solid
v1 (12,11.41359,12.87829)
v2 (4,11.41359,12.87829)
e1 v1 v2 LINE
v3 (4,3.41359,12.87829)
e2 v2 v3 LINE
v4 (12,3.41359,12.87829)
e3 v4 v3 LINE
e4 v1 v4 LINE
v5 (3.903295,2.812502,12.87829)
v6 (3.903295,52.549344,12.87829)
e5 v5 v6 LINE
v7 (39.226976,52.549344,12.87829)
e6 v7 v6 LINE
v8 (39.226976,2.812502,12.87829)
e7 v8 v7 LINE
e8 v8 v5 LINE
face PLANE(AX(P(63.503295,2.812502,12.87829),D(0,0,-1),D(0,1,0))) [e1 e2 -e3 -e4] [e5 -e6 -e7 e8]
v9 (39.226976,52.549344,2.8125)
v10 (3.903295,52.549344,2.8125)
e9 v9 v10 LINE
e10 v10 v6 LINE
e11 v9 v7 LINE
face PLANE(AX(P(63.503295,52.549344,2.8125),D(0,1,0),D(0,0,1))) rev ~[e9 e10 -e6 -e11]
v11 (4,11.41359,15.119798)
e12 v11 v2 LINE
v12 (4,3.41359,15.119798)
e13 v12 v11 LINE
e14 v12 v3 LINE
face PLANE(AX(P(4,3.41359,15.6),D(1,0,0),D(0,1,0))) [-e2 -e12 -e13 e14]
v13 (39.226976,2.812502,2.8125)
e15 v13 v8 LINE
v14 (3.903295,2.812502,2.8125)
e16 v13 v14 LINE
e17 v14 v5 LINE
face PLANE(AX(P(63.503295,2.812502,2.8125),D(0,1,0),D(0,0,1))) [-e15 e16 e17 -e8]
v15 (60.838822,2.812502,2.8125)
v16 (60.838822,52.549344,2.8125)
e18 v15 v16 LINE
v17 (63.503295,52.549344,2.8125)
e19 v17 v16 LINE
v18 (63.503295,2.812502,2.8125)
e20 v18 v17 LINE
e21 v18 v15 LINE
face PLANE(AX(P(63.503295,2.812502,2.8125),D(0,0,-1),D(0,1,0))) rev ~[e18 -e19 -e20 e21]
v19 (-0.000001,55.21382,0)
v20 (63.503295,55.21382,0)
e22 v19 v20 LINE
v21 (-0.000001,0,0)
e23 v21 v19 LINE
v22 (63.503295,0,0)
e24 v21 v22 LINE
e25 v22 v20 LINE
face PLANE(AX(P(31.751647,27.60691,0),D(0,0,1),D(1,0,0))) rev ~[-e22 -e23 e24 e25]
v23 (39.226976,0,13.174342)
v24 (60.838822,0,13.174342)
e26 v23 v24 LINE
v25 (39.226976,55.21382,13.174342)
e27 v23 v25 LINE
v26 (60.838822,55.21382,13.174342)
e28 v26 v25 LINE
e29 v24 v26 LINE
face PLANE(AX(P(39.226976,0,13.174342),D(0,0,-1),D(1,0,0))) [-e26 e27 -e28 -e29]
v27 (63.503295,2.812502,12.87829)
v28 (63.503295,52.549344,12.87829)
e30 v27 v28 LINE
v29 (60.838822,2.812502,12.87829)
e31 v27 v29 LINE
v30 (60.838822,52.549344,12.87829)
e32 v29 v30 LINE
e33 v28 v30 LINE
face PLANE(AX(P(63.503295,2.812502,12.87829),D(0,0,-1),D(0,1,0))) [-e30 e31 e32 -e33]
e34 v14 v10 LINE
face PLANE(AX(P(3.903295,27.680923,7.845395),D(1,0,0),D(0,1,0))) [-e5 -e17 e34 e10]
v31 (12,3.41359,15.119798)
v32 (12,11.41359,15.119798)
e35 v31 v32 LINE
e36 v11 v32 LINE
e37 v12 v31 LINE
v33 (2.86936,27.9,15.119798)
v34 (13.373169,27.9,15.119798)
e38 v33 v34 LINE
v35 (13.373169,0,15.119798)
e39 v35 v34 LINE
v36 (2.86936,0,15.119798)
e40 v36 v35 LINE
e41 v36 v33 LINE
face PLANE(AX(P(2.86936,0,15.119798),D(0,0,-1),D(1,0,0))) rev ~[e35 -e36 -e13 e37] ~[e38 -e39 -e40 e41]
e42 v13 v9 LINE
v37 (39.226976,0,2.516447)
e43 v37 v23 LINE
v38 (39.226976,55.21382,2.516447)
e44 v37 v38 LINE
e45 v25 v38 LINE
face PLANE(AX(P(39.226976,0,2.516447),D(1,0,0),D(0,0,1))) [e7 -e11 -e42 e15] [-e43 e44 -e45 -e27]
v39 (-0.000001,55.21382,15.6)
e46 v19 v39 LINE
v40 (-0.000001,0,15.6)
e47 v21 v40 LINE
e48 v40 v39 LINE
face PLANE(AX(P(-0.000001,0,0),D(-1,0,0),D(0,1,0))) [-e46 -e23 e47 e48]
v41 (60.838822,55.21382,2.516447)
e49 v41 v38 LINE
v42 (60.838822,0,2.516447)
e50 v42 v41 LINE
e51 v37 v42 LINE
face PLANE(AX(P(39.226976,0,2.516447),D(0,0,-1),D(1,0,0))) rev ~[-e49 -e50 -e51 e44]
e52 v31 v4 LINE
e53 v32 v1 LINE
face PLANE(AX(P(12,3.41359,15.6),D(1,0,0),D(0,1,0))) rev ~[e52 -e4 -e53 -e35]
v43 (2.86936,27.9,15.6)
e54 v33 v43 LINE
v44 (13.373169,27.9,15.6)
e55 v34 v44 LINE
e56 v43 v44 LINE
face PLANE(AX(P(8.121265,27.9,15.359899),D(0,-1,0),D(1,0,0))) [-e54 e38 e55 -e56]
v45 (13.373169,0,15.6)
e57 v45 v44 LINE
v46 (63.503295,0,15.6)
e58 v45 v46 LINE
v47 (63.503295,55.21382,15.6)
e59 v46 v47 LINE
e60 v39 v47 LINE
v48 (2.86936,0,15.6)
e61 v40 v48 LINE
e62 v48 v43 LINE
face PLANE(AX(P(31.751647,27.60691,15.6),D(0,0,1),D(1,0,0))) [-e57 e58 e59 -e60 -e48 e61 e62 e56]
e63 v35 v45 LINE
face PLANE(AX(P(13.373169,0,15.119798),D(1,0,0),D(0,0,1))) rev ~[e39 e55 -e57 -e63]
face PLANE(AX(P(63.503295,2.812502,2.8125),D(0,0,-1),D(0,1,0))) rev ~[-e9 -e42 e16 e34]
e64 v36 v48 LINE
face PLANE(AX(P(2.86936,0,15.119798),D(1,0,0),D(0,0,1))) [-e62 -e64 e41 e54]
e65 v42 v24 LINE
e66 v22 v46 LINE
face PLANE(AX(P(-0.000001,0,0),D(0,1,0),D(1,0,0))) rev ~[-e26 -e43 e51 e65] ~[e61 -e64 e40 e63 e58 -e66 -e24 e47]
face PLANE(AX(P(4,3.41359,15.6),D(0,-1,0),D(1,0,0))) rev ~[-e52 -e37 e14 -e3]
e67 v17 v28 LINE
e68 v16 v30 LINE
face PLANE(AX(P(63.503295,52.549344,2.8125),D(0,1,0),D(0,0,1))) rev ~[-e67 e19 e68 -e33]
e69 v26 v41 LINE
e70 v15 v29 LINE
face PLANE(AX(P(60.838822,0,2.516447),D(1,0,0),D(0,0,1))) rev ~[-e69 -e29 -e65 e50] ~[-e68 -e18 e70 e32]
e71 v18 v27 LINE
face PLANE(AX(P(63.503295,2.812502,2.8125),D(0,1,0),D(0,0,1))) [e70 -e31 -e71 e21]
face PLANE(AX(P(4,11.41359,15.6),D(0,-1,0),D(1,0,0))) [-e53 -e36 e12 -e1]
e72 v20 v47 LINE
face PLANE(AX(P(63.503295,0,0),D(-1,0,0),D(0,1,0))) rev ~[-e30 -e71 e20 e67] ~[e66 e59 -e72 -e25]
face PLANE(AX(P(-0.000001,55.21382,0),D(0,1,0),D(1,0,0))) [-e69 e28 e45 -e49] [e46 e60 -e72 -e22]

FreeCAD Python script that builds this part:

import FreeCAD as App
import Part
import Sketcher

V = App.Vector

doc = App.newDocument("Part")
body = doc.addObject("PartDesign::Body", "Body")

# Sketch on XY plane
sketch1 = body.newObject("Sketcher::SketchObject", "Sketch")
sketch1.AttachmentSupport = (doc.getObject("XY_Plane"), [""])
sketch1.MapMode = "FlatFace"
sketch1.addGeometry([
    Part.LineSegment(V(0, 55, 0), V(0, 0, 0)),
    Part.LineSegment(V(0, 0, 0), V(64, 0, 0)),
    Part.LineSegment(V(64, 0, 0), V(64, 55, 0)),
    Part.LineSegment(V(64, 55, 0), V(0, 55, 0)),
], False)
sketch1.addConstraint([
    Sketcher.Constraint("Coincident", 0, 2, 1, 1),
    Sketcher.Constraint("Coincident", 1, 2, 2, 1),
    Sketcher.Constraint("Coincident", 2, 2, 3, 1),
    Sketcher.Constraint("Coincident", 3, 2, 0, 1),
    Sketcher.Constraint("Vertical", 0),
    Sketcher.Constraint("Horizontal", 1),
    Sketcher.Constraint("Vertical", 2),
    Sketcher.Constraint("Horizontal", 3),
    Sketcher.Constraint("Coincident", 0, 2, -1, 1),
    Sketcher.Constraint("DistanceY", 0, 2, 0, 1, 55.21382),
    Sketcher.Constraint("DistanceX", 1, 1, 1, 2, 63.503295),
])
pad1 = body.newObject("PartDesign::Pad", "Pad")
pad1.Profile = sketch1
pad1.Length = 15.6

# Sketch on XZ plane
sketch2 = body.newObject("Sketcher::SketchObject", "Sketch001")
sketch2.AttachmentSupport = (doc.getObject("XZ_Plane"), [""])
sketch2.MapMode = "FlatFace"
sketch2.addGeometry([
    Part.LineSegment(V(39, 13, 0), V(39, 3, 0)),
    Part.LineSegment(V(39, 3, 0), V(61, 3, 0)),
    Part.LineSegment(V(61, 3, 0), V(61, 13, 0)),
    Part.LineSegment(V(61, 13, 0), V(39, 13, 0)),
], False)
sketch2.addConstraint([
    Sketcher.Constraint("Coincident", 0, 2, 1, 1),
    Sketcher.Constraint("Coincident", 1, 2, 2, 1),
    Sketcher.Constraint("Coincident", 2, 2, 3, 1),
    Sketcher.Constraint("Coincident", 3, 2, 0, 1),
    Sketcher.Constraint("Vertical", 0),
    Sketcher.Constraint("Horizontal", 1),
    Sketcher.Constraint("Vertical", 2),
    Sketcher.Constraint("Horizontal", 3),
    Sketcher.Constraint("DistanceX", 1, 1, 1, 2, 21.611847),
    Sketcher.Constraint("DistanceY", 0, 2, 0, 1, 10.657895),
    Sketcher.Constraint("DistanceX", -1, 1, 0, 2, 39.226976),
    Sketcher.Constraint("DistanceY", -1, 1, 0, 2, 2.516447),
])
pocket1 = body.newObject("PartDesign::Pocket", "Pocket")
pocket1.Profile = sketch2
pocket1.Length = 60.6

# Sketch on YZ plane
sketch3 = body.newObject("Sketcher::SketchObject", "Sketch002")
sketch3.AttachmentSupport = (doc.getObject("YZ_Plane"), [""])
sketch3.MapMode = "FlatFace"
sketch3.AttachmentOffset = App.Placement(V(0, 0, 63.503295), App.Rotation())
sketch3.addGeometry([
    Part.LineSegment(V(3, 13, 0), V(3, 3, 0)),
    Part.LineSegment(V(3, 3, 0), V(53, 3, 0)),
    Part.LineSegment(V(53, 3, 0), V(53, 13, 0)),
    Part.LineSegment(V(53, 13, 0), V(3, 13, 0)),
], False)
sketch3.addConstraint([
    Sketcher.Constraint("Coincident", 0, 2, 1, 1),
    Sketcher.Constraint("Coincident", 1, 2, 2, 1),
    Sketcher.Constraint("Coincident", 2, 2, 3, 1),
    Sketcher.Constraint("Coincident", 3, 2, 0, 1),
    Sketcher.Constraint("Vertical", 0),
    Sketcher.Constraint("Horizontal", 1),
    Sketcher.Constraint("Vertical", 2),
    Sketcher.Constraint("Horizontal", 3),
    Sketcher.Constraint("DistanceX", 1, 1, 1, 2, 49.736842),
    Sketcher.Constraint("DistanceY", 0, 2, 0, 1, 10.06579),
    Sketcher.Constraint("DistanceX", -1, 1, 0, 2, 2.812502),
    Sketcher.Constraint("DistanceY", -1, 1, 0, 2, 2.8125),
])
pocket2 = body.newObject("PartDesign::Pocket", "Pocket001")
pocket2.Profile = sketch3
pocket2.Length = 59.6

# Sketch on XY plane
sketch4 = body.newObject("Sketcher::SketchObject", "Sketch003")
sketch4.AttachmentSupport = (doc.getObject("XY_Plane"), [""])
sketch4.MapMode = "FlatFace"
sketch4.AttachmentOffset = App.Placement(V(0, 0, 15.6), App.Rotation())
sketch4.addGeometry([
    Part.LineSegment(V(4, 11, 0), V(4, 3, 0)),
    Part.LineSegment(V(4, 3, 0), V(12, 3, 0)),
    Part.LineSegment(V(12, 3, 0), V(12, 11, 0)),
    Part.LineSegment(V(12, 11, 0), V(4, 11, 0)),
], False)
sketch4.addConstraint([
    Sketcher.Constraint("Coincident", 0, 2, 1, 1),
    Sketcher.Constraint("Coincident", 1, 2, 2, 1),
    Sketcher.Constraint("Coincident", 2, 2, 3, 1),
    Sketcher.Constraint("Coincident", 3, 2, 0, 1),
    Sketcher.Constraint("Vertical", 0),
    Sketcher.Constraint("Horizontal", 1),
    Sketcher.Constraint("Vertical", 2),
    Sketcher.Constraint("Horizontal", 3),
    Sketcher.Constraint("Equal", 3, 0),
    Sketcher.Constraint("DistanceX", 1, 1, 1, 2, 8.0),
    Sketcher.Constraint("DistanceX", -1, 1, 0, 2, 4.0),
    Sketcher.Constraint("DistanceY", -1, 1, 0, 2, 3.41359),
])
pocket3 = body.newObject("PartDesign::Pocket", "Pocket002")
pocket3.Profile = sketch4
pocket3.Length = 6.1

# Sketch on XZ plane
sketch5 = body.newObject("Sketcher::SketchObject", "Sketch004")
sketch5.AttachmentSupport = (doc.getObject("XZ_Plane"), [""])
sketch5.MapMode = "FlatFace"
sketch5.addGeometry([
    Part.LineSegment(V(2.87, 15.6, 0), V(2.87, 15.12, 0)),
    Part.LineSegment(V(2.87, 15.12, 0), V(13.37, 15.12, 0)),
    Part.LineSegment(V(13.37, 15.12, 0), V(13.37, 15.6, 0)),
    Part.LineSegment(V(13.37, 15.6, 0), V(2.87, 15.6, 0)),
], False)
sketch5.addConstraint([
    Sketcher.Constraint("Coincident", 0, 2, 1, 1),
    Sketcher.Constraint("Coincident", 1, 2, 2, 1),
    Sketcher.Constraint("Coincident", 2, 2, 3, 1),
    Sketcher.Constraint("Coincident", 3, 2, 0, 1),
    Sketcher.Constraint("Vertical", 0),
    Sketcher.Constraint("Horizontal", 1),
    Sketcher.Constraint("Vertical", 2),
    Sketcher.Constraint("Horizontal", 3),
    Sketcher.Constraint("DistanceY", -1, 1, 2, 2, 15.6),
    Sketcher.Constraint("DistanceX", 1, 1, 1, 2, 10.503809),
    Sketcher.Constraint("DistanceY", 0, 2, 0, 1, 0.480202),
    Sketcher.Constraint("DistanceX", -1, 1, 0, 2, 2.86936),
])
pocket4 = body.newObject("PartDesign::Pocket", "Pocket003")
pocket4.Profile = sketch5
pocket4.Length = 27.9

doc.recompute()
